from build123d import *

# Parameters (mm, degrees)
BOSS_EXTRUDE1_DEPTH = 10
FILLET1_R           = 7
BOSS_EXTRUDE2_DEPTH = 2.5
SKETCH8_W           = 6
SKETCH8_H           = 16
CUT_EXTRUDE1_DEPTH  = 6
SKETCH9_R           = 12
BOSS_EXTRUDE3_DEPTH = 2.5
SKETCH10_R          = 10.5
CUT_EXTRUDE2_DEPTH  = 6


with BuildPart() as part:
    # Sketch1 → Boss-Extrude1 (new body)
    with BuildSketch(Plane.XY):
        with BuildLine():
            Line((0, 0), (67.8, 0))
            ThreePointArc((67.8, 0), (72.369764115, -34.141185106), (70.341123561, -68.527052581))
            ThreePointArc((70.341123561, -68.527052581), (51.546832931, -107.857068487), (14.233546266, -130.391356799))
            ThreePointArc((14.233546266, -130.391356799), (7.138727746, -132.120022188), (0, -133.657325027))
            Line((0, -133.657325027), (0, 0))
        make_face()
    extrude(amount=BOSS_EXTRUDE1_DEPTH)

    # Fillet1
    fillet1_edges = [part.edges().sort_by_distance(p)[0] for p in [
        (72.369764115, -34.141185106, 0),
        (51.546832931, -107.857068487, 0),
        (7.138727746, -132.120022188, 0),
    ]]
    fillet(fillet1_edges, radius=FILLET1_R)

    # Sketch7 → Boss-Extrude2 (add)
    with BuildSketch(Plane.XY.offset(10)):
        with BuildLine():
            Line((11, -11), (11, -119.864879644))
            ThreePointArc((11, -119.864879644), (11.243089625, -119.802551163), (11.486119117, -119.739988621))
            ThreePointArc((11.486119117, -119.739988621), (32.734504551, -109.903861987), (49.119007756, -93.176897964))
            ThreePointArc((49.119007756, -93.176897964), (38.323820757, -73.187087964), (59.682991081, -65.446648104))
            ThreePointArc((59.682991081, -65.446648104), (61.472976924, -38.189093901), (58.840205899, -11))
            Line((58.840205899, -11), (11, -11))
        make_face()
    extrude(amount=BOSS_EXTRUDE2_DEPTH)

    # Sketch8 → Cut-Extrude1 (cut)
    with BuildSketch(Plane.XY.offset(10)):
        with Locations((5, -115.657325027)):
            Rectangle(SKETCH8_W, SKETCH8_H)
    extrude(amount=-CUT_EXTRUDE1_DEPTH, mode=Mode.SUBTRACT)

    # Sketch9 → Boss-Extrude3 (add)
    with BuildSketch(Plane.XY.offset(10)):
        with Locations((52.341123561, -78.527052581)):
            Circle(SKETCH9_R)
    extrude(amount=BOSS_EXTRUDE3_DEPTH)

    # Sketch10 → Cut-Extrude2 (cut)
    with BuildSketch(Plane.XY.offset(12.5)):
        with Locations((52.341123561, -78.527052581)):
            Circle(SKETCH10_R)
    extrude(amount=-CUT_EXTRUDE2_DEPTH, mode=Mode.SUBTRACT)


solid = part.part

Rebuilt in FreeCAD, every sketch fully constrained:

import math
import FreeCAD as App
import Part
import Sketcher
Q = App.Units.Quantity


def edges_at(feature, points):
    """Names of the edges that pass closest to the given points."""
    edges = feature.Shape.Edges
    near = lambda p: min(range(len(edges)), key=lambda i: edges[i].distToShape(Part.Vertex(*p))[0])
    return sorted({f"Edge{near(p) + 1}" for p in points})


def add_polygon(sketch, points):
    """Adds a closed chain of lines whose ends are joined by coincident constraints."""
    first, n = sketch.GeometryCount, len(points)
    for a, b in zip(points, points[1:] + points[:1]):
        sketch.addGeometry(Part.LineSegment(App.Vector(*a, 0), App.Vector(*b, 0)), False)
    for i in range(n):
        sketch.addConstraint(Sketcher.Constraint("Coincident", first + i, 2, first + (i + 1) % n, 1))

doc = App.newDocument("Part")
params = doc.addObject("Spreadsheet::Sheet", "Params")
for row, (alias, value) in enumerate([
    ("sketch1_radius", "76 mm"),
    ("sketch1_radius2", "271.600001 mm"),
    ("sketch1_width", "67.8 mm"),
    ("pad1_length", "10 mm"),
    ("fillet_radius", "7 mm"),
    ("sketch2_radius", "65 mm"),
    ("sketch2_radius2", "15 mm"),
    ("pad2_length", "2.5 mm"),
    ("sketch3_width", "6 mm"),
    ("sketch3_height", "16 mm"),
    ("pocket1_length", "6 mm"),
    ("sketch4_diameter", "24 mm"),
    ("pad3_length", "2.5 mm"),
    ("sketch5_diameter", "21 mm"),
    ("pocket2_length", "6 mm"),
], start=1):
    params.set(f"A{row}", alias)
    params.set(f"B{row}", "=" + value)
    params.setAlias(f"B{row}", alias)

body = doc.addObject("PartDesign::Body", "Body")

sketch1 = doc.addObject("Sketcher::SketchObject", "Sketch")
body.addObject(sketch1)
sketch1.AttachmentSupport = (doc.XY_Plane, [""])
sketch1.MapMode = "FlatFace"
sketch1.addGeometry([
    Part.LineSegment(App.Vector(67.8, 0, 0), App.Vector(0, 0, 0)),
    Part.LineSegment(App.Vector(0, 0, 0), App.Vector(0, -133.657325, 0)),
    Part.ArcOfCircle(Part.Circle(App.Vector(-53.602928, 132.600608, 0), App.Vector(0, 0, 1), 271.600001), math.radians(-78.617389), math.radians(-75.536328)),
    Part.ArcOfCircle(Part.Circle(App.Vector(-4.748678, -56.800086, 0), App.Vector(0, 0, 1), 76), math.radians(-75.536328), math.radians(-8.876328)),
    Part.ArcOfCircle(Part.Circle(App.Vector(-107.2, -40.8, 0), App.Vector(0, 0, 1), 179.693183), math.radians(-8.876328), math.radians(13.123672)),
], False)
sketch1.addConstraint([
    Sketcher.Constraint("Coincident", 0, 2, 1, 1),
    Sketcher.Constraint("Coincident", 1, 2, 2, 1),
    Sketcher.Constraint("Tangent", 2, 2, 3, 1),
    Sketcher.Constraint("Tangent", 3, 2, 4, 1),
    Sketcher.Constraint("Coincident", 4, 2, 0, 1),
    Sketcher.Constraint("Horizontal", 0),
    Sketcher.Constraint("Vertical", 1),
    Sketcher.Constraint("Coincident", 0, 2, -1, 1),
    Sketcher.Constraint("Radius", 3, Q("76 mm")),
    Sketcher.Constraint("Radius", 2, Q("271.600001 mm")),
    Sketcher.Constraint("DistanceX", 0, 2, 0, 1, Q("67.8 mm")),
    Sketcher.Constraint("DistanceX", 4, 3, -1, 1, Q("107.2 mm")),
    Sketcher.Constraint("DistanceY", 4, 3, -1, 1, Q("40.8 mm")),
    Sketcher.Constraint("DistanceX", 3, 3, 3, 2, Q("75.089801 mm")),
    Sketcher.Constraint("DistanceY", 1, 2, 1, 1, Q("133.657325 mm")),
])
sketch1.setExpression("Constraints[8]", "Params.sketch1_radius")
sketch1.setExpression("Constraints[9]", "Params.sketch1_radius2")
sketch1.setExpression("Constraints[10]", "Params.sketch1_width")
pad1 = doc.addObject("PartDesign::Pad", "Pad")
body.addObject(pad1)
pad1.Profile = sketch1
pad1.setExpression("Length", "Params.pad1_length")
doc.recompute()

fillet = doc.addObject("PartDesign::Fillet", "Fillet")
body.addObject(fillet)
fillet.Base = (pad1, edges_at(pad1, [(72.37, -34.141, 0), (51.547, -107.857, 0), (7.139, -132.12, 0)]))
fillet.setExpression("Radius", "Params.fillet_radius")

sketch2 = doc.addObject("Sketcher::SketchObject", "Sketch001")
body.addObject(sketch2)
sketch2.AttachmentSupport = (doc.XY_Plane, [""])
sketch2.MapMode = "FlatFace"
sketch2.AttachmentOffset = App.Placement(App.Vector(0, 0, 10), App.Rotation())
sketch2.addGeometry([
    Part.LineSegment(App.Vector(11, -11, 0), App.Vector(11, -119.9, 0)),
    Part.ArcOfCircle(Part.Circle(App.Vector(-53.6, 132.6, 0), App.Vector(0, 0, 1), 260.6), math.radians(-75.65), math.radians(-75.54)),
    Part.ArcOfCircle(Part.Circle(App.Vector(-4.7, -56.8, 0), App.Vector(0, 0, 1), 65), math.radians(-76), math.radians(-34)),
    Part.ArcOfCircle(Part.Circle(App.Vector(52.3, -78.5, 0), App.Vector(0, 0, 1), 15), math.radians(61), math.radians(258)),
    Part.ArcOfCircle(Part.Circle(App.Vector(-107.2, -40.8, 0), App.Vector(0, 0, 1), 168.7), math.radians(-8.4), math.radians(10.17)),
    Part.LineSegment(App.Vector(58.8, -11, 0), App.Vector(11, -11, 0)),
], False)
sketch2.addConstraint([
    Sketcher.Constraint("Coincident", 0, 2, 1, 1),
    Sketcher.Constraint("Tangent", 1, 2, 2, 1),
    Sketcher.Constraint("Coincident", 2, 2, 3, 2),
    Sketcher.Constraint("Coincident", 3, 1, 4, 1),
    Sketcher.Constraint("Coincident", 4, 2, 5, 1),
    Sketcher.Constraint("Coincident", 5, 2, 0, 1),
    Sketcher.Constraint("Vertical", 0),
    Sketcher.Constraint("Horizontal", 5),
    Sketcher.Constraint("Radius", 2, Q("65 mm")),
    Sketcher.Constraint("Radius", 3, Q("15 mm")),
    Sketcher.Constraint("DistanceX", -1, 1, 0, 2, Q("11 mm")),
    Sketcher.Constraint("DistanceY", 4, 2, -1, 1, Q("11 mm")),
    Sketcher.Constraint("DistanceX", 4, 3, -1, 1, Q("107.2 mm")),
    Sketcher.Constraint("DistanceY", 4, 3, -1, 1, Q("40.8 mm")),
    Sketcher.Constraint("Radius", 1, Q("260.601177 mm")),
    Sketcher.Constraint("Radius", 4, Q("168.693183 mm")),
    Sketcher.Constraint("DistanceY", 0, 2, 0, 1, Q("108.86488 mm")),
    Sketcher.Constraint("DistanceX", 2, 3, 3, 3, Q("57.089801 mm")),
    Sketcher.Constraint("DistanceY", 3, 3, 1, 3, Q("211.128799 mm")),
    Sketcher.Constraint("DistanceX", 2, 2, 4, 2, Q("9.721198 mm")),
    Sketcher.Constraint("DistanceX", 1, 3, -1, 1, Q("53.60322 mm")),
])
sketch2.setExpression("Constraints[8]", "Params.sketch2_radius")
sketch2.setExpression("Constraints[9]", "Params.sketch2_radius2")
pad2 = doc.addObject("PartDesign::Pad", "Pad001")
body.addObject(pad2)
pad2.Profile = sketch2
pad2.setExpression("Length", "Params.pad2_length")

sketch3 = doc.addObject("Sketcher::SketchObject", "Sketch002")
body.addObject(sketch3)
sketch3.AttachmentSupport = (doc.XY_Plane, [""])
sketch3.MapMode = "FlatFace"
sketch3.AttachmentOffset = App.Placement(App.Vector(0, 0, 10), App.Rotation())
add_polygon(sketch3, [(2, -108), (2, -124), (8, -124), (8, -108)])
sketch3.addConstraint([
    Sketcher.Constraint("Vertical", 0),
    Sketcher.Constraint("Horizontal", 1),
    Sketcher.Constraint("Vertical", 2),
    Sketcher.Constraint("Horizontal", 3),
    Sketcher.Constraint("DistanceX", 1, 1, 1, 2, Q("6 mm")),
    Sketcher.Constraint("DistanceY", 0, 2, 0, 1, Q("16 mm")),
    Sketcher.Constraint("DistanceX", -1, 1, 0, 2, Q("2 mm")),
    Sketcher.Constraint("DistanceY", 0, 2, -1, 1, Q("123.657325 mm")),
])
sketch3.setExpression("Constraints[8]", "Params.sketch3_width")
sketch3.setExpression("Constraints[9]", "Params.sketch3_height")
pocket1 = doc.addObject("PartDesign::Pocket", "Pocket")
body.addObject(pocket1)
pocket1.Profile = sketch3
pocket1.setExpression("Length", "Params.pocket1_length")

sketch4 = doc.addObject("Sketcher::SketchObject", "Sketch003")
body.addObject(sketch4)
sketch4.AttachmentSupport = (doc.XY_Plane, [""])
sketch4.MapMode = "FlatFace"
sketch4.AttachmentOffset = App.Placement(App.Vector(0, 0, 10), App.Rotation())
sketch4.addGeometry(Part.Circle(App.Vector(52, -79, 0), App.Vector(0, 0, 1), 12), False)
sketch4.addConstraint([
    Sketcher.Constraint("Diameter", 0, Q("24 mm")),
    Sketcher.Constraint("DistanceX", -1, 1, 0, 3, Q("52.341124 mm")),
    Sketcher.Constraint("DistanceY", 0, 3, -1, 1, Q("78.527053 mm")),
])
sketch4.setExpression("Constraints[0]", "Params.sketch4_diameter")
pad3 = doc.addObject("PartDesign::Pad", "Pad002")
body.addObject(pad3)
pad3.Profile = sketch4
pad3.setExpression("Length", "Params.pad3_length")

sketch5 = doc.addObject("Sketcher::SketchObject", "Sketch004")
body.addObject(sketch5)
sketch5.AttachmentSupport = (doc.XY_Plane, [""])
sketch5.MapMode = "FlatFace"
sketch5.AttachmentOffset = App.Placement(App.Vector(0, 0, 12.5), App.Rotation())
sketch5.addGeometry(Part.Circle(App.Vector(52, -79, 0), App.Vector(0, 0, 1), 10), False)
sketch5.addConstraint([
    Sketcher.Constraint("Diameter", 0, Q("21 mm")),
    Sketcher.Constraint("DistanceX", -1, 1, 0, 3, Q("52.341124 mm")),
    Sketcher.Constraint("DistanceY", 0, 3, -1, 1, Q("78.527053 mm")),
])
sketch5.setExpression("Constraints[0]", "Params.sketch5_diameter")
pocket2 = doc.addObject("PartDesign::Pocket", "Pocket001")
body.addObject(pocket2)
pocket2.Profile = sketch5
pocket2.setExpression("Length", "Params.pocket2_length")

doc.recompute()
